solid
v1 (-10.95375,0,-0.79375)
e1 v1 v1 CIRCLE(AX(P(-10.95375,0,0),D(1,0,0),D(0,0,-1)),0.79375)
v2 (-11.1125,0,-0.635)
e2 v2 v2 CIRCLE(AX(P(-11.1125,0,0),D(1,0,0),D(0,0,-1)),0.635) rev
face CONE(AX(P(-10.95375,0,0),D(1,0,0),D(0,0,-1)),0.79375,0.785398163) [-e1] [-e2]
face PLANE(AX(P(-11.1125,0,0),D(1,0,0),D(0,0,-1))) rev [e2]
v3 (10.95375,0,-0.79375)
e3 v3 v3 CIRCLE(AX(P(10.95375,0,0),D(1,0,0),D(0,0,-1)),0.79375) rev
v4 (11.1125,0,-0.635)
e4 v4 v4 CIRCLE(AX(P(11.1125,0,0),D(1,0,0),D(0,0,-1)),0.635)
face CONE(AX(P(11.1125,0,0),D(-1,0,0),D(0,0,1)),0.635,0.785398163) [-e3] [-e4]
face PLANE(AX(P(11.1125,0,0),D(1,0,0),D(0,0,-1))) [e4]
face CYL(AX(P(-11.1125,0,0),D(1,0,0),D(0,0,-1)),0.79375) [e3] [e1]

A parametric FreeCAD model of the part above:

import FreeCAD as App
import Part
import Sketcher
Q = App.Units.Quantity


def edges_at(feature, points):
    """Names of the edges that pass closest to the given points."""
    edges = feature.Shape.Edges
    near = lambda p: min(range(len(edges)), key=lambda i: edges[i].distToShape(Part.Vertex(*p))[0])
    return sorted({f"Edge{near(p) + 1}" for p in points})

doc = App.newDocument("Part")
body = doc.addObject("PartDesign::Body", "Body")

# Sketch on YZ plane
sketch1 = body.newObject("Sketcher::SketchObject", "Sketch")
sketch1.AttachmentSupport = (doc.getObject("YZ_Plane"), [""])
sketch1.MapMode = "FlatFace"
sketch1.addGeometry(Part.Circle(App.Vector(0, 0, 0), App.Vector(0, 0, 1), 0.79375), False)
sketch1.addConstraint([
    Sketcher.Constraint("Coincident", 0, 3, -1, 1),
    Sketcher.Constraint("Diameter", 0, Q("0.0625 in")),
])
pad1 = body.newObject("PartDesign::Pad", "Pad")
pad1.Profile = sketch1
pad1.Type = "TwoLengths"
pad1.Length = Q("0.4375 in")
pad1.Length2 = Q("0.4375 in")
doc.recompute()

chamfer = body.newObject("PartDesign::Chamfer", "Chamfer")
chamfer.Base = (pad1, edges_at(pad1, [(-11.113, 0, 0.794), (11.113, 0, 0.794)]))
chamfer.Size = 0.15875

doc.recompute()
